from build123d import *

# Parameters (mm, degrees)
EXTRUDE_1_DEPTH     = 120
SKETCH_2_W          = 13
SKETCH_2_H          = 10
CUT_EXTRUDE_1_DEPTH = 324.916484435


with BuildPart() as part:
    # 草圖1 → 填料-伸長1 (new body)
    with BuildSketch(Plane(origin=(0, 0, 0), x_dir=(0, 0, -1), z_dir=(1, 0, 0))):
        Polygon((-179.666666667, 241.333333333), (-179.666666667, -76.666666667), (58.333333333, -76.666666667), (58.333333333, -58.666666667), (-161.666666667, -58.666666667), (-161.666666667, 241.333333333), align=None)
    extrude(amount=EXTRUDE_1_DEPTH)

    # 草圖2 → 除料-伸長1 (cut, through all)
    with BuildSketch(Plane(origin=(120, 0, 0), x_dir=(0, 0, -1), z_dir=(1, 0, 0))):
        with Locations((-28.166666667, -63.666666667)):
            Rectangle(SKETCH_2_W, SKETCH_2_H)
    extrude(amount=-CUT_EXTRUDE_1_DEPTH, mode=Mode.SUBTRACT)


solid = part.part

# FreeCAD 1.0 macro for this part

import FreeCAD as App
import Part
import Sketcher
from FreeCAD import Vector
Q = App.Units.Quantity

doc = App.newDocument("Part")
body = doc.addObject("PartDesign::Body", "Body")

# Sketch on YZ plane
sketch1 = body.newObject("Sketcher::SketchObject", "Sketch")
sketch1.AttachmentSupport = (doc.getObject("YZ_Plane"), [""])
sketch1.MapMode = "FlatFace"
sketch1.addGeometry([
    Part.LineSegment(Vector(241, 180, 0), Vector(-77, 180, 0)),  # 0
    Part.LineSegment(Vector(-77, 180, 0), Vector(-77, -58, 0)),  # 1
    Part.LineSegment(Vector(-77, -58, 0), Vector(-59, -58, 0)),  # 2
    Part.LineSegment(Vector(-59, -58, 0), Vector(-59, 162, 0)),  # 3
    Part.LineSegment(Vector(-59, 162, 0), Vector(241, 162, 0)),  # 4
    Part.LineSegment(Vector(241, 162, 0), Vector(241, 180, 0)),  # 5
], False)
sketch1.addConstraint([
    Sketcher.Constraint("Coincident", 0, 2, 1, 1),
    Sketcher.Constraint("Coincident", 1, 2, 2, 1),
    Sketcher.Constraint("Coincident", 2, 2, 3, 1),
    Sketcher.Constraint("Coincident", 3, 2, 4, 1),
    Sketcher.Constraint("Coincident", 4, 2, 5, 1),
    Sketcher.Constraint("Coincident", 5, 2, 0, 1),
    Sketcher.Constraint("Horizontal", 0),
    Sketcher.Constraint("Vertical", 1),
    Sketcher.Constraint("Horizontal", 2),
    Sketcher.Constraint("Vertical", 3),
    Sketcher.Constraint("Horizontal", 4),
    Sketcher.Constraint("Vertical", 5),
    Sketcher.Constraint("Equal", 2, 5),
    Sketcher.Constraint("DistanceX", 0, 2, 0, 1, Q("318 mm")),
    Sketcher.Constraint("DistanceX", 2, 1, 2, 2, Q("18 mm")),
    Sketcher.Constraint("DistanceY", 1, 2, 1, 1, Q("238 mm")),
    Sketcher.Constraint("DistanceX", 0, 2, -1, 1, Q("76.666667 mm")),
    Sketcher.Constraint("DistanceY", -1, 1, 0, 2, Q("179.666667 mm")),
])
pad1 = body.newObject("PartDesign::Pad", "Pad")
pad1.Profile = sketch1
pad1.Length = 120

# Sketch on YZ plane
sketch2 = body.newObject("Sketcher::SketchObject", "Sketch001")
sketch2.AttachmentSupport = (doc.getObject("YZ_Plane"), [""])
sketch2.MapMode = "FlatFace"
sketch2.AttachmentOffset = App.Placement(Vector(0, 0, 120), App.Rotation())
sketch2.addGeometry([
    Part.LineSegment(Vector(-59, 35, 0), Vector(-69, 35, 0)),
    Part.LineSegment(Vector(-69, 35, 0), Vector(-69, 22, 0)),
    Part.LineSegment(Vector(-69, 22, 0), Vector(-59, 22, 0)),
    Part.LineSegment(Vector(-59, 22, 0), Vector(-59, 35, 0)),
], False)
sketch2.addConstraint([
    Sketcher.Constraint("Coincident", 0, 2, 1, 1),
    Sketcher.Constraint("Coincident", 1, 2, 2, 1),
    Sketcher.Constraint("Coincident", 2, 2, 3, 1),
    Sketcher.Constraint("Coincident", 3, 2, 0, 1),
    Sketcher.Constraint("Horizontal", 0),
    Sketcher.Constraint("Vertical", 1),
    Sketcher.Constraint("Horizontal", 2),
    Sketcher.Constraint("Vertical", 3),
    Sketcher.Constraint("DistanceX", 0, 2, 0, 1, Q("10 mm")),
    Sketcher.Constraint("DistanceY", 1, 2, 1, 1, Q("13 mm")),
    Sketcher.Constraint("DistanceX", 0, 2, -1, 1, Q("68.666667 mm")),
    Sketcher.Constraint("DistanceY", -1, 1, 0, 2, Q("34.666667 mm")),
])
pocket1 = body.newObject("PartDesign::Pocket", "Pocket")
pocket1.Profile = sketch2
pocket1.Type = "ThroughAll"

doc.recompute()
